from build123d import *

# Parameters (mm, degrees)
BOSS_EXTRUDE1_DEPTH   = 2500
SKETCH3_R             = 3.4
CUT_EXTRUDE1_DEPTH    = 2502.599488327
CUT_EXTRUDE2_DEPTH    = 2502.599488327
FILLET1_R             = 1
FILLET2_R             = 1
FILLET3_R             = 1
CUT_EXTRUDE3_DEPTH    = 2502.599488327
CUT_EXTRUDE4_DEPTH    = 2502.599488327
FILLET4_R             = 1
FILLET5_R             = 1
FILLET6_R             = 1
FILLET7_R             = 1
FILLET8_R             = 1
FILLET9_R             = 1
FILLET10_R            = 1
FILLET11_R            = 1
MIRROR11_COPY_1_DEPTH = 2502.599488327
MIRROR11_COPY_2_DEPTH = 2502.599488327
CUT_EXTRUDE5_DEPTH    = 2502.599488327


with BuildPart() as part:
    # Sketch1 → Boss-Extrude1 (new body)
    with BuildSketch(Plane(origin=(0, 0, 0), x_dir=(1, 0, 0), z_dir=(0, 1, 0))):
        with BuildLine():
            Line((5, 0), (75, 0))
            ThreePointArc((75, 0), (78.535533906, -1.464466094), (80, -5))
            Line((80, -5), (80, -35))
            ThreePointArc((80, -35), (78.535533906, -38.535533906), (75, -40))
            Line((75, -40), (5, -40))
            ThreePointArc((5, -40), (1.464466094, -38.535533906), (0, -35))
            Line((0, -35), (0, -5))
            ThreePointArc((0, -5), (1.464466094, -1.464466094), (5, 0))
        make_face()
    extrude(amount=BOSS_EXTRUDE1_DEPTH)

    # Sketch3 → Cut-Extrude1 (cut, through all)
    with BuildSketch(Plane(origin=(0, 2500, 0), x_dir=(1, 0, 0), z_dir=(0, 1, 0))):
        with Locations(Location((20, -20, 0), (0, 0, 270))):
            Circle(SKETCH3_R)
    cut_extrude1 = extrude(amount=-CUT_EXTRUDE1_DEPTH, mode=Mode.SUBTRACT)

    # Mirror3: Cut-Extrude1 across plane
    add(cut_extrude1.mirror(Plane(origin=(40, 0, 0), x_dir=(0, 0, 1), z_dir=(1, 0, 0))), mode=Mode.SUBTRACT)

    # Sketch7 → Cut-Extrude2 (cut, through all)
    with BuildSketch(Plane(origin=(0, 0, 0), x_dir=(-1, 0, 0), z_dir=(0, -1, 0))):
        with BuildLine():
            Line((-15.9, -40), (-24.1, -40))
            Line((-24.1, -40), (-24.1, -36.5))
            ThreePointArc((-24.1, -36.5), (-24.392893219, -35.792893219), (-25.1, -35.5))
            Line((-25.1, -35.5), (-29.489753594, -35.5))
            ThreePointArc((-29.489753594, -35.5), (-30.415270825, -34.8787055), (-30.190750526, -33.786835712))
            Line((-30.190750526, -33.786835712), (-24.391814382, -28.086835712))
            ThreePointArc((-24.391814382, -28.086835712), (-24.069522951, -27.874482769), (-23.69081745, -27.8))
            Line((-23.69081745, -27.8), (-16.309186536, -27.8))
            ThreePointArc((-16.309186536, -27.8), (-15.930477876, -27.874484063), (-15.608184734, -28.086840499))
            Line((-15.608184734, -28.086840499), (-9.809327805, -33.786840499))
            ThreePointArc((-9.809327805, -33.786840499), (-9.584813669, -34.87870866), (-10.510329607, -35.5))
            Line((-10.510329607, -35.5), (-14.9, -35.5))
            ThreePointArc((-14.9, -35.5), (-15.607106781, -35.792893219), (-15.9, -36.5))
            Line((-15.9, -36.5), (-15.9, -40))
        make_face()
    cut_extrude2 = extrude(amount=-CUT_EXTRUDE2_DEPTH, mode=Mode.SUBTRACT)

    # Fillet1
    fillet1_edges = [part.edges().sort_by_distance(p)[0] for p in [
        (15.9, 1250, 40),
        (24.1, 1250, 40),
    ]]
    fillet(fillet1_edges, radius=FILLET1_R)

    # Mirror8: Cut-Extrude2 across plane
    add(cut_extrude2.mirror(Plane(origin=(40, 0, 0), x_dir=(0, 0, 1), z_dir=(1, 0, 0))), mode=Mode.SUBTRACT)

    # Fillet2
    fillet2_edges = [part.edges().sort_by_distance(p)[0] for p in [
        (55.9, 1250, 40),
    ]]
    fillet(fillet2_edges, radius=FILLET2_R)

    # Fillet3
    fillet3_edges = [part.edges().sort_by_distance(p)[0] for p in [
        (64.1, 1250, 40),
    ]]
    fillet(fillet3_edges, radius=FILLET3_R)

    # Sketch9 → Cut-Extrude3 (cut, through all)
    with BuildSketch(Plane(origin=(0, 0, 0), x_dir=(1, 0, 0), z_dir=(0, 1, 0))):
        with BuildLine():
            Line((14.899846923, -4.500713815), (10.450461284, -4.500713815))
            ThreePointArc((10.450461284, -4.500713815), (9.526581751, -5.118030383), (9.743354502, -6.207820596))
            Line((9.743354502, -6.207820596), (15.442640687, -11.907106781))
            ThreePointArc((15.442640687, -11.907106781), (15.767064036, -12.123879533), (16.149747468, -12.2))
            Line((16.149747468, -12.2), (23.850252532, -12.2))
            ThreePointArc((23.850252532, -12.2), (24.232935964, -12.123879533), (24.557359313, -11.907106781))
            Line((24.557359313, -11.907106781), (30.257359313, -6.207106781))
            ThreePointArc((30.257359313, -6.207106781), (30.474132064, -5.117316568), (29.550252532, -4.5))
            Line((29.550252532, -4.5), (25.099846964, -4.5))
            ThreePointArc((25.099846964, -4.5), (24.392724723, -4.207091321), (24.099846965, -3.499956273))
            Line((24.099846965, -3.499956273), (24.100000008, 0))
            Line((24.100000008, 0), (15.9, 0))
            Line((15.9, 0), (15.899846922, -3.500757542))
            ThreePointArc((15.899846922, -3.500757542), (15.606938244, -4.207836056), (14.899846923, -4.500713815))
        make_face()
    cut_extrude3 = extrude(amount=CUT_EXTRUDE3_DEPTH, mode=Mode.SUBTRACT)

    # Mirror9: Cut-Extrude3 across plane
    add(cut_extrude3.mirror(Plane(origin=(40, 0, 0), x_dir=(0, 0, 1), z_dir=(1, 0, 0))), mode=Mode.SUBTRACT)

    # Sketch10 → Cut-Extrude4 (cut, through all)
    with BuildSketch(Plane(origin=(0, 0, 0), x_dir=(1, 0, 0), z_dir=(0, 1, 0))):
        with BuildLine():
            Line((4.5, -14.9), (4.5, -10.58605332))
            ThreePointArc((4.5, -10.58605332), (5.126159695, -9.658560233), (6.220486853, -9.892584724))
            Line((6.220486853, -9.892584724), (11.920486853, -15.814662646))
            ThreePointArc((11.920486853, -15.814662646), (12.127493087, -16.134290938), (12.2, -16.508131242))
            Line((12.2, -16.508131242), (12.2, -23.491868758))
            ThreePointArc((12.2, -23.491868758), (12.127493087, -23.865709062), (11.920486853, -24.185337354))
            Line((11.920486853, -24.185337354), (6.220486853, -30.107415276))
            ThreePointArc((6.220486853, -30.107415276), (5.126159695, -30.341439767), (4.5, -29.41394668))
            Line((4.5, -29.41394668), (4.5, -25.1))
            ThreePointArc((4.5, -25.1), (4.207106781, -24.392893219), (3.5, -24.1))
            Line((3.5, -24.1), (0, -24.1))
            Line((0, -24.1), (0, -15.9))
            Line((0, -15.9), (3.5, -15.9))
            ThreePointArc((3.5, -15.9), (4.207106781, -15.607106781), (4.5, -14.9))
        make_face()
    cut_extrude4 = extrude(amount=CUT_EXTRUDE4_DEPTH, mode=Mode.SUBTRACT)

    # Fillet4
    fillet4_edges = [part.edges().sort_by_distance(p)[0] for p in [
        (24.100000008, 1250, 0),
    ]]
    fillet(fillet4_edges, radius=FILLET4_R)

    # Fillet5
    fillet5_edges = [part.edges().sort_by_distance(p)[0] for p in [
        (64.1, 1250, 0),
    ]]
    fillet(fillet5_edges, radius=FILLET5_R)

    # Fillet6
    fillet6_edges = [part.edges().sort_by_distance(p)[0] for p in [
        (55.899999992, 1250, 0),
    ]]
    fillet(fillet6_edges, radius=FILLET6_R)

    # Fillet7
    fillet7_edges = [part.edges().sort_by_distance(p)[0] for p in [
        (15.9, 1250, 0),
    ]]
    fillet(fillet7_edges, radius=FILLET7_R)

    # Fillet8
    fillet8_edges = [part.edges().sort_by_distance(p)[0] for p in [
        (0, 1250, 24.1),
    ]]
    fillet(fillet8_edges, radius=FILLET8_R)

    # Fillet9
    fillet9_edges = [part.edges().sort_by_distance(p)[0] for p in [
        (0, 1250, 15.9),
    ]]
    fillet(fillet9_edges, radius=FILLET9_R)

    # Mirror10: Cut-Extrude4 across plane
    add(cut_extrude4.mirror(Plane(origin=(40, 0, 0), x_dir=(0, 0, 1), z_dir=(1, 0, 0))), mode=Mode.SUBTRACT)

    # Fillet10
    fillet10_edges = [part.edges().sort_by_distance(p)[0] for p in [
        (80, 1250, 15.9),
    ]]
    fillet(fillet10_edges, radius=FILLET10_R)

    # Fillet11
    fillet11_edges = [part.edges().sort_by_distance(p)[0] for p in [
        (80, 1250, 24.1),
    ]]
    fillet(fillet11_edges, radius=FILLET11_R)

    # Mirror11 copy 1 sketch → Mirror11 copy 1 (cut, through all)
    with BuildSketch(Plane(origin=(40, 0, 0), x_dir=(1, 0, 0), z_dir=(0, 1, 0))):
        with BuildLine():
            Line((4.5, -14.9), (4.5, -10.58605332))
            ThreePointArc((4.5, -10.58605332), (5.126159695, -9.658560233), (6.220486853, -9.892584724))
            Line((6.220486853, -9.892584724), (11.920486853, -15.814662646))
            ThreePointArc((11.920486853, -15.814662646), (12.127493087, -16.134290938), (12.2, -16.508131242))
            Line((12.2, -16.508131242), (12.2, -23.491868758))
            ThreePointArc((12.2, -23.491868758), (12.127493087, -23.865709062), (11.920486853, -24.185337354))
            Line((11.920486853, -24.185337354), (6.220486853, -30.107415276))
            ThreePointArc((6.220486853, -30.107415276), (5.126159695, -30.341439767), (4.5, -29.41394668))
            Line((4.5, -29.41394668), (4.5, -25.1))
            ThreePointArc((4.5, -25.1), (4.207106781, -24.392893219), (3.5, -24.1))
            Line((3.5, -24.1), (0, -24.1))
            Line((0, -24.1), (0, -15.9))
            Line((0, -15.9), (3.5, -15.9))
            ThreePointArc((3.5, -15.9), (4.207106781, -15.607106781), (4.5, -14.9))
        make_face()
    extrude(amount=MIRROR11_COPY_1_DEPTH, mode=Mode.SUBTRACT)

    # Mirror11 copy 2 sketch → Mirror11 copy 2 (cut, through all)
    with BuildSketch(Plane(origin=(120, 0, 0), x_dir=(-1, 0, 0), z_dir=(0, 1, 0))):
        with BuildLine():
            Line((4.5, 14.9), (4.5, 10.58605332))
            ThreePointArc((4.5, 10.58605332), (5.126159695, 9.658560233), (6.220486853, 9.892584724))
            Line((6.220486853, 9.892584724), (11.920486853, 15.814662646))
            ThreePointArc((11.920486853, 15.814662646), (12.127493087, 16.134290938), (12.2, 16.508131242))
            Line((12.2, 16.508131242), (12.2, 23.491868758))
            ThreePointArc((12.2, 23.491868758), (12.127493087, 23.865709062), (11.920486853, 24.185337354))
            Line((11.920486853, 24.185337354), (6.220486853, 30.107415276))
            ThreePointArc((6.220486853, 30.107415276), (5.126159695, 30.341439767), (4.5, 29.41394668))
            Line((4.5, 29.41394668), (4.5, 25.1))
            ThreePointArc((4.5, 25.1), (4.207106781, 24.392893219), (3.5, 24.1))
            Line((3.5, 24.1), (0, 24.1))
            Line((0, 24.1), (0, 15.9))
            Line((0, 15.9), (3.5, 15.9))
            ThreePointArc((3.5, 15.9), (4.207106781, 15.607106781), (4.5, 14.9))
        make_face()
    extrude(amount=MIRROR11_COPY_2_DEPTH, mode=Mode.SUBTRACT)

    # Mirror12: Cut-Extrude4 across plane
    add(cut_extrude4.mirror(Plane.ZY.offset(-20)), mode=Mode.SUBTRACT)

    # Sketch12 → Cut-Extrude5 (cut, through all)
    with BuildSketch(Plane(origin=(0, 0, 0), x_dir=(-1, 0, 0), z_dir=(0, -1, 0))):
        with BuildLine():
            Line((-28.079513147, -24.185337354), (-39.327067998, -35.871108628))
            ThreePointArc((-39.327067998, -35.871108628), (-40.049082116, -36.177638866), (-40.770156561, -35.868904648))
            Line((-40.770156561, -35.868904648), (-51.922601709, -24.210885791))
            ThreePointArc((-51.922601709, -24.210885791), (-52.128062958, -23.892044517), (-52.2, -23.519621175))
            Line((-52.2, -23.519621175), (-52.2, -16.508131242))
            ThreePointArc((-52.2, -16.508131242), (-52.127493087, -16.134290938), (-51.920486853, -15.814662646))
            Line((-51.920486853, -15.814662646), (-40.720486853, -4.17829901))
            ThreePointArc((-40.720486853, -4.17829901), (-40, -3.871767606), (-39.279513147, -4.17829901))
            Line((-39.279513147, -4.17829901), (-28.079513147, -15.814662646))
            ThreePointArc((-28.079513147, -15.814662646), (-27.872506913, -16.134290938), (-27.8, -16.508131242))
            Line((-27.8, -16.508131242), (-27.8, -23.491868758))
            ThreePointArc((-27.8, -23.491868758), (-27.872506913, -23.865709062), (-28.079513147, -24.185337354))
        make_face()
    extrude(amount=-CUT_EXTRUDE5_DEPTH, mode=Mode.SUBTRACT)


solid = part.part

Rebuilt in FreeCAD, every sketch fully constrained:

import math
import FreeCAD as App
import Part
import Sketcher


def edges_at(feature, points):
    """Names of the edges that pass closest to the given points."""
    edges = feature.Shape.Edges
    near = lambda p: min(range(len(edges)), key=lambda i: edges[i].distToShape(Part.Vertex(*p))[0])
    return sorted({f"Edge{near(p) + 1}" for p in points})

doc = App.newDocument("Part")
body = doc.addObject("PartDesign::Body", "Body")

# Sketch on XZ plane
sketch1 = body.newObject("Sketcher::SketchObject", "Sketch")
sketch1.AttachmentSupport = (doc.getObject("XZ_Plane"), [""])
sketch1.MapMode = "FlatFace"
sketch1.addGeometry([
    Part.LineSegment(App.Vector(75, 0, 0), App.Vector(5, 0, 0)),  # 0
    Part.ArcOfCircle(Part.Circle(App.Vector(5, 5, 0), App.Vector(0, 0, 1), 5), math.radians(180), math.radians(270)),  # 1
    Part.LineSegment(App.Vector(0, 5, 0), App.Vector(0, 35, 0)),  # 2
    Part.ArcOfCircle(Part.Circle(App.Vector(5, 35, 0), App.Vector(0, 0, 1), 5), math.radians(90), math.radians(180)),  # 3
    Part.LineSegment(App.Vector(5, 40, 0), App.Vector(75, 40, 0)),  # 4
    Part.ArcOfCircle(Part.Circle(App.Vector(75, 35, 0), App.Vector(0, 0, 1), 5), math.radians(0), math.radians(90)),  # 5
    Part.LineSegment(App.Vector(80, 35, 0), App.Vector(80, 5, 0)),  # 6
    Part.ArcOfCircle(Part.Circle(App.Vector(75, 5, 0), App.Vector(0, 0, 1), 5), math.radians(-90), math.radians(0)),  # 7
], False)
sketch1.addConstraint([
    Sketcher.Constraint("Tangent", 0, 2, 1, 2),
    Sketcher.Constraint("Tangent", 1, 1, 2, 1),
    Sketcher.Constraint("Tangent", 2, 2, 3, 2),
    Sketcher.Constraint("Tangent", 3, 1, 4, 1),
    Sketcher.Constraint("Tangent", 4, 2, 5, 2),
    Sketcher.Constraint("Tangent", 5, 1, 6, 1),
    Sketcher.Constraint("Tangent", 6, 2, 7, 2),
    Sketcher.Constraint("Tangent", 7, 1, 0, 1),
    Sketcher.Constraint("Horizontal", 0),
    Sketcher.Constraint("Vertical", 2),
    Sketcher.Constraint("Horizontal", 4),
    Sketcher.Constraint("Vertical", 6),
    Sketcher.Constraint("Equal", 1, 3),
    Sketcher.Constraint("Equal", 3, 5),
    Sketcher.Constraint("Equal", 5, 7),
    Sketcher.Constraint("PointOnObject", 0, 2, -1),
    Sketcher.Constraint("PointOnObject", 1, 1, -2),
    Sketcher.Constraint("Radius", 1, 5.0),
    Sketcher.Constraint("DistanceX", 0, 2, 0, 1, 70.0),
    Sketcher.Constraint("DistanceY", 2, 1, 2, 2, 30.0),
])
pad1 = body.newObject("PartDesign::Pad", "Pad")
pad1.Profile = sketch1
pad1.Length = 2500
pad1.Reversed = True

# Sketch on XZ plane
sketch2 = body.newObject("Sketcher::SketchObject", "Sketch001")
sketch2.AttachmentSupport = (doc.getObject("XZ_Plane"), [""])
sketch2.MapMode = "FlatFace"
sketch2.AttachmentOffset = App.Placement(App.Vector(0, 0, -2500), App.Rotation())
sketch2.addGeometry(Part.Circle(App.Vector(20, 20, 0), App.Vector(0, 0, 1), 3.4), False)
sketch2.addConstraint([
    Sketcher.Constraint("Diameter", 0, 6.8),
    Sketcher.Constraint("DistanceX", -1, 1, 0, 3, 20.0),
    Sketcher.Constraint("DistanceY", -1, 1, 0, 3, 20.0),
])
pocket1 = body.newObject("PartDesign::Pocket", "Pocket")
pocket1.Profile = sketch2
pocket1.Type = "ThroughAll"
pocket1.Reversed = True
doc.recompute()

datumplane = body.newObject("PartDesign::Plane", "DatumPlane")
datumplane.AttachmentSupport = (doc.getObject("YZ_Plane"), [""])
datumplane.MapMode = "FlatFace"
datumplane.AttachmentOffset = App.Placement(App.Vector(0, 0, 40), App.Rotation())
mirrored = body.newObject("PartDesign::Mirrored", "Mirrored")
mirrored.Originals = [pocket1]
mirrored.MirrorPlane = (datumplane, [""])
body.Tip = mirrored

# Sketch on XZ plane
sketch3 = body.newObject("Sketcher::SketchObject", "Sketch002")
sketch3.AttachmentSupport = (doc.getObject("XZ_Plane"), [""])
sketch3.MapMode = "FlatFace"
sketch3.addGeometry([
    Part.LineSegment(App.Vector(24.1, 40, 0), App.Vector(15.9, 40, 0)),  # 0
    Part.LineSegment(App.Vector(15.9, 40, 0), App.Vector(15.9, 36.5, 0)),  # 1
    Part.ArcOfCircle(Part.Circle(App.Vector(14.9, 36.5, 0), App.Vector(0, 0, 1), 1), math.radians(-90), math.radians(0)),  # 2
    Part.LineSegment(App.Vector(14.9, 35.5, 0), App.Vector(10.5, 35.5, 0)),  # 3
    Part.ArcOfCircle(Part.Circle(App.Vector(10.5, 34.5, 0), App.Vector(0, 0, 1), 1), math.radians(90), math.radians(225)),  # 4
    Part.LineSegment(App.Vector(9.8, 33.8, 0), App.Vector(15.6, 28.1, 0)),  # 5
    Part.ArcOfCircle(Part.Circle(App.Vector(16.3, 28.8, 0), App.Vector(0, 0, 1), 1), math.radians(-135), math.radians(-90)),  # 6
    Part.LineSegment(App.Vector(16.3, 27.8, 0), App.Vector(23.7, 27.8, 0)),  # 7
    Part.ArcOfCircle(Part.Circle(App.Vector(23.7, 28.8, 0), App.Vector(0, 0, 1), 1), math.radians(-90), math.radians(-45)),  # 8
    Part.LineSegment(App.Vector(24.4, 28.1, 0), App.Vector(30.2, 33.8, 0)),  # 9
    Part.ArcOfCircle(Part.Circle(App.Vector(29.5, 34.5, 0), App.Vector(0, 0, 1), 1), math.radians(-45), math.radians(90)),  # 10
    Part.LineSegment(App.Vector(29.5, 35.5, 0), App.Vector(25.1, 35.5, 0)),  # 11
    Part.ArcOfCircle(Part.Circle(App.Vector(25.1, 36.5, 0), App.Vector(0, 0, 1), 1), math.radians(-180), math.radians(-90)),  # 12
    Part.LineSegment(App.Vector(24.1, 36.5, 0), App.Vector(24.1, 40, 0)),  # 13
], False)
sketch3.addConstraint([
    Sketcher.Constraint("Coincident", 0, 2, 1, 1),
    Sketcher.Constraint("Tangent", 1, 2, 2, 2),
    Sketcher.Constraint("Tangent", 2, 1, 3, 1),
    Sketcher.Constraint("Tangent", 3, 2, 4, 1),
    Sketcher.Constraint("Tangent", 4, 2, 5, 1),
    Sketcher.Constraint("Tangent", 5, 2, 6, 1),
    Sketcher.Constraint("Tangent", 6, 2, 7, 1),
    Sketcher.Constraint("Tangent", 7, 2, 8, 1),
    Sketcher.Constraint("Tangent", 8, 2, 9, 1),
    Sketcher.Constraint("Tangent", 9, 2, 10, 1),
    Sketcher.Constraint("Tangent", 10, 2, 11, 1),
    Sketcher.Constraint("Tangent", 11, 2, 12, 2),
    Sketcher.Constraint("Tangent", 12, 1, 13, 1),
    Sketcher.Constraint("Coincident", 13, 2, 0, 1),
    Sketcher.Constraint("Horizontal", 0),
    Sketcher.Constraint("Vertical", 1),
    Sketcher.Constraint("Horizontal", 3),
    Sketcher.Constraint("Horizontal", 7),
    Sketcher.Constraint("Horizontal", 11),
    Sketcher.Constraint("Vertical", 13),
    Sketcher.Constraint("Equal", 2, 4),
    Sketcher.Constraint("Equal", 4, 6),
    Sketcher.Constraint("Equal", 6, 8),
    Sketcher.Constraint("Equal", 8, 10),
    Sketcher.Constraint("Equal", 10, 12),
    Sketcher.Constraint("Horizontal", 4, 3, 10, 3),
    Sketcher.Constraint("Radius", 2, 1.0),
    Sketcher.Constraint("DistanceX", 0, 2, 0, 1, 8.2),
    Sketcher.Constraint("DistanceY", 1, 2, 1, 1, 3.5),
    Sketcher.Constraint("DistanceY", -1, 1, 0, 2, 40.0),
    Sketcher.Constraint("DistanceX", -1, 1, 2, 3, 14.9),
    Sketcher.Constraint("DistanceY", -1, 1, 6, 3, 28.8),
    Sketcher.Constraint("DistanceX", 4, 2, 4, 3, 0.701002),
    Sketcher.Constraint("DistanceX", 3, 2, 3, 1, 4.38967),
    Sketcher.Constraint("DistanceX", 7, 1, 7, 2, 7.381631),
    Sketcher.Constraint("DistanceX", 11, 2, 11, 1, 4.389754),
])
pocket2 = body.newObject("PartDesign::Pocket", "Pocket001")
pocket2.Profile = sketch3
pocket2.Type = "ThroughAll"
doc.recompute()

fillet = body.newObject("PartDesign::Fillet", "Fillet")
fillet.Base = (pocket2, edges_at(pocket2, [(15.9, 1250, 40), (24.1, 1250, 40)]))
fillet.Radius = 1
doc.recompute()

datumplane2 = body.newObject("PartDesign::Plane", "DatumPlane001")
datumplane2.AttachmentSupport = (doc.getObject("YZ_Plane"), [""])
datumplane2.MapMode = "FlatFace"
datumplane2.AttachmentOffset = App.Placement(App.Vector(0, 0, 40), App.Rotation())
mirrored2 = body.newObject("PartDesign::Mirrored", "Mirrored001")
mirrored2.Originals = [pocket2]
mirrored2.MirrorPlane = (datumplane2, [""])
body.Tip = mirrored2
doc.recompute()

fillet2 = body.newObject("PartDesign::Fillet", "Fillet001")
fillet2.Base = (mirrored2, edges_at(mirrored2, [(55.9, 1250, 40)]))
fillet2.Radius = 1
doc.recompute()

fillet3 = body.newObject("PartDesign::Fillet", "Fillet002")
fillet3.Base = (fillet2, edges_at(fillet2, [(64.1, 1250, 40)]))
fillet3.Radius = 1

# Sketch on XZ plane
sketch4 = body.newObject("Sketcher::SketchObject", "Sketch003")
sketch4.AttachmentSupport = (doc.getObject("XZ_Plane"), [""])
sketch4.MapMode = "FlatFace"
sketch4.addGeometry([
    Part.LineSegment(App.Vector(14.9, 4.5, 0), App.Vector(10.5, 4.5, 0)),  # 0
    Part.ArcOfCircle(Part.Circle(App.Vector(10.5, 5.5, 0), App.Vector(0, 0, 1), 1), math.radians(135), math.radians(270)),  # 1
    Part.LineSegment(App.Vector(9.7, 6.2, 0), App.Vector(15.4, 11.9, 0)),  # 2
    Part.ArcOfCircle(Part.Circle(App.Vector(16.1, 11.2, 0), App.Vector(0, 0, 1), 1), math.radians(90), math.radians(135)),  # 3
    Part.LineSegment(App.Vector(16.1, 12.2, 0), App.Vector(23.9, 12.2, 0)),  # 4
    Part.ArcOfCircle(Part.Circle(App.Vector(23.9, 11.2, 0), App.Vector(0, 0, 1), 1), math.radians(45), math.radians(90)),  # 5
    Part.LineSegment(App.Vector(24.6, 11.9, 0), App.Vector(30.3, 6.2, 0)),  # 6
    Part.ArcOfCircle(Part.Circle(App.Vector(29.6, 5.5, 0), App.Vector(0, 0, 1), 1), math.radians(-90), math.radians(45)),  # 7
    Part.LineSegment(App.Vector(29.6, 4.5, 0), App.Vector(25.1, 4.5, 0)),  # 8
    Part.ArcOfCircle(Part.Circle(App.Vector(25.1, 3.5, 0), App.Vector(0, 0, 1), 1), math.radians(90), math.radians(180)),  # 9
    Part.LineSegment(App.Vector(24.1, 3.5, 0), App.Vector(24.1, 0, 0)),  # 10
    Part.LineSegment(App.Vector(24.1, 0, 0), App.Vector(15.9, 0, 0)),  # 11
    Part.LineSegment(App.Vector(15.9, 0, 0), App.Vector(15.9, 3.5, 0)),  # 12
    Part.ArcOfCircle(Part.Circle(App.Vector(14.9, 3.5, 0), App.Vector(0, 0, 1), 1), math.radians(0), math.radians(90)),  # 13
], False)
sketch4.addConstraint([
    Sketcher.Constraint("Tangent", 0, 2, 1, 2),
    Sketcher.Constraint("Tangent", 1, 1, 2, 1),
    Sketcher.Constraint("Tangent", 2, 2, 3, 2),
    Sketcher.Constraint("Tangent", 3, 1, 4, 1),
    Sketcher.Constraint("Tangent", 4, 2, 5, 2),
    Sketcher.Constraint("Tangent", 5, 1, 6, 1),
    Sketcher.Constraint("Tangent", 6, 2, 7, 2),
    Sketcher.Constraint("Tangent", 7, 1, 8, 1),
    Sketcher.Constraint("Tangent", 8, 2, 9, 1),
    Sketcher.Constraint("Tangent", 9, 2, 10, 1),
    Sketcher.Constraint("Coincident", 10, 2, 11, 1),
    Sketcher.Constraint("Coincident", 11, 2, 12, 1),
    Sketcher.Constraint("Tangent", 12, 2, 13, 1),
    Sketcher.Constraint("Tangent", 13, 2, 0, 1),
    Sketcher.Constraint("Horizontal", 0),
    Sketcher.Constraint("Horizontal", 4),
    Sketcher.Constraint("Horizontal", 8),
    Sketcher.Constraint("Horizontal", 11),
    Sketcher.Constraint("Equal", 1, 3),
    Sketcher.Constraint("Equal", 3, 5),
    Sketcher.Constraint("Equal", 5, 7),
    Sketcher.Constraint("Equal", 7, 9),
    Sketcher.Constraint("Equal", 9, 13),
    Sketcher.Constraint("PointOnObject", 10, 2, -1),
    Sketcher.Constraint("Perpendicular", 2, 6),
    Sketcher.Constraint("Parallel", 10, 12),
    Sketcher.Constraint("Horizontal", 2, 2, 5, 1),
    Sketcher.Constraint("Radius", 1, 1.0),
    Sketcher.Constraint("DistanceX", 11, 2, 11, 1, 8.2),
    Sketcher.Constraint("DistanceY", -1, 1, 3, 3, 11.2),
    Sketcher.Constraint("DistanceY", -1, 1, 7, 3, 5.5),
    Sketcher.Constraint("DistanceX", -1, 1, 10, 2, 24.1),
    Sketcher.Constraint("DistanceX", 3, 3, 9, 3, 8.950099),
    Sketcher.Constraint("DistanceX", 1, 1, 5, 3, 14.106898),
    Sketcher.Constraint("DistanceX", 0, 2, 0, 1, 4.449386),
    Sketcher.Constraint("DistanceX", -1, 1, 1, 3, 10.450461),
])
pocket3 = body.newObject("PartDesign::Pocket", "Pocket002")
pocket3.Profile = sketch4
pocket3.Type = "ThroughAll"
doc.recompute()

datumplane3 = body.newObject("PartDesign::Plane", "DatumPlane002")
datumplane3.AttachmentSupport = (doc.getObject("YZ_Plane"), [""])
datumplane3.MapMode = "FlatFace"
datumplane3.AttachmentOffset = App.Placement(App.Vector(0, 0, 40), App.Rotation())
mirrored3 = body.newObject("PartDesign::Mirrored", "Mirrored002")
mirrored3.Originals = [pocket3]
mirrored3.MirrorPlane = (datumplane3, [""])
body.Tip = mirrored3

# Sketch on XZ plane
sketch5 = body.newObject("Sketcher::SketchObject", "Sketch004")
sketch5.AttachmentSupport = (doc.getObject("XZ_Plane"), [""])
sketch5.MapMode = "FlatFace"
sketch5.addGeometry([
    Part.LineSegment(App.Vector(4.5, 10.6, 0), App.Vector(4.5, 14.9, 0)),  # 0
    Part.ArcOfCircle(Part.Circle(App.Vector(3.5, 14.9, 0), App.Vector(0, 0, 1), 1), math.radians(0), math.radians(90)),  # 1
    Part.LineSegment(App.Vector(3.5, 15.9, 0), App.Vector(0, 15.9, 0)),  # 2
    Part.LineSegment(App.Vector(0, 15.9, 0), App.Vector(0, 24.1, 0)),  # 3
    Part.LineSegment(App.Vector(0, 24.1, 0), App.Vector(3.5, 24.1, 0)),  # 4
    Part.ArcOfCircle(Part.Circle(App.Vector(3.5, 25.1, 0), App.Vector(0, 0, 1), 1), math.radians(-90), math.radians(0)),  # 5
    Part.LineSegment(App.Vector(4.5, 25.1, 0), App.Vector(4.5, 29.4, 0)),  # 6
    Part.ArcOfCircle(Part.Circle(App.Vector(5.5, 29.4, 0), App.Vector(0, 0, 1), 1), math.radians(44), math.radians(180)),  # 7
    Part.LineSegment(App.Vector(6.2, 30.1, 0), App.Vector(11.9, 24.2, 0)),  # 8
    Part.ArcOfCircle(Part.Circle(App.Vector(11.2, 23.5, 0), App.Vector(0, 0, 1), 1), math.radians(0), math.radians(44)),  # 9
    Part.LineSegment(App.Vector(12.2, 23.5, 0), App.Vector(12.2, 16.5, 0)),  # 10
    Part.ArcOfCircle(Part.Circle(App.Vector(11.2, 16.5, 0), App.Vector(0, 0, 1), 1), math.radians(-44), math.radians(0)),  # 11
    Part.LineSegment(App.Vector(11.9, 15.8, 0), App.Vector(6.2, 9.9, 0)),  # 12
    Part.ArcOfCircle(Part.Circle(App.Vector(5.5, 10.6, 0), App.Vector(0, 0, 1), 1), math.radians(180), math.radians(316)),  # 13
], False)
sketch5.addConstraint([
    Sketcher.Constraint("Tangent", 0, 2, 1, 1),
    Sketcher.Constraint("Tangent", 1, 2, 2, 1),
    Sketcher.Constraint("Coincident", 2, 2, 3, 1),
    Sketcher.Constraint("Coincident", 3, 2, 4, 1),
    Sketcher.Constraint("Tangent", 4, 2, 5, 1),
    Sketcher.Constraint("Tangent", 5, 2, 6, 1),
    Sketcher.Constraint("Tangent", 6, 2, 7, 2),
    Sketcher.Constraint("Tangent", 7, 1, 8, 1),
    Sketcher.Constraint("Tangent", 8, 2, 9, 2),
    Sketcher.Constraint("Tangent", 9, 1, 10, 1),
    Sketcher.Constraint("Tangent", 10, 2, 11, 2),
    Sketcher.Constraint("Tangent", 11, 1, 12, 1),
    Sketcher.Constraint("Tangent", 12, 2, 13, 2),
    Sketcher.Constraint("Tangent", 13, 1, 0, 1),
    Sketcher.Constraint("Vertical", 0),
    Sketcher.Constraint("Horizontal", 2),
    Sketcher.Constraint("Vertical", 3),
    Sketcher.Constraint("Horizontal", 4),
    Sketcher.Constraint("Vertical", 6),
    Sketcher.Constraint("Vertical", 10),
    Sketcher.Constraint("Equal", 1, 5),
    Sketcher.Constraint("Equal", 5, 7),
    Sketcher.Constraint("Equal", 7, 9),
    Sketcher.Constraint("Equal", 9, 11),
    Sketcher.Constraint("Equal", 11, 13),
    Sketcher.Constraint("PointOnObject", 2, 2, -2),
    Sketcher.Constraint("Vertical", 1, 3, 5, 3),
    Sketcher.Constraint("Vertical", 8, 2, 11, 1),
    Sketcher.Constraint("Equal", 0, 6),
    Sketcher.Constraint("Radius", 1, 1.0),
    Sketcher.Constraint("DistanceX", 2, 2, 2, 1, 3.5),
    Sketcher.Constraint("DistanceY", 3, 1, 3, 2, 8.2),
    Sketcher.Constraint("DistanceY", -1, 1, 1, 3, 14.9),
    Sketcher.Constraint("DistanceX", -1, 1, 9, 3, 11.2),
    Sketcher.Constraint("Distance", 8, 8.21955),
    Sketcher.Constraint("DistanceY", 0, 1, 0, 2, 4.313947),
])
pocket4 = body.newObject("PartDesign::Pocket", "Pocket003")
pocket4.Profile = sketch5
pocket4.Type = "ThroughAll"
doc.recompute()

fillet4 = body.newObject("PartDesign::Fillet", "Fillet003")
fillet4.Base = (pocket4, edges_at(pocket4, [(24.1, 1250, 0)]))
fillet4.Radius = 1
doc.recompute()

fillet5 = body.newObject("PartDesign::Fillet", "Fillet004")
fillet5.Base = (fillet4, edges_at(fillet4, [(64.1, 1250, 0)]))
fillet5.Radius = 1
doc.recompute()

fillet6 = body.newObject("PartDesign::Fillet", "Fillet005")
fillet6.Base = (fillet5, edges_at(fillet5, [(55.9, 1250, 0)]))
fillet6.Radius = 1
doc.recompute()

fillet7 = body.newObject("PartDesign::Fillet", "Fillet006")
fillet7.Base = (fillet6, edges_at(fillet6, [(15.9, 1250, 0)]))
fillet7.Radius = 1
doc.recompute()

fillet8 = body.newObject("PartDesign::Fillet", "Fillet007")
fillet8.Base = (fillet7, edges_at(fillet7, [(0, 1250, 24.1)]))
fillet8.Radius = 1
doc.recompute()

fillet9 = body.newObject("PartDesign::Fillet", "Fillet008")
fillet9.Base = (fillet8, edges_at(fillet8, [(0, 1250, 15.9)]))
fillet9.Radius = 1
doc.recompute()

datumplane4 = body.newObject("PartDesign::Plane", "DatumPlane003")
datumplane4.AttachmentSupport = (doc.getObject("YZ_Plane"), [""])
datumplane4.MapMode = "FlatFace"
datumplane4.AttachmentOffset = App.Placement(App.Vector(0, 0, 40), App.Rotation())
mirrored4 = body.newObject("PartDesign::Mirrored", "Mirrored003")
mirrored4.Originals = [pocket4]
mirrored4.MirrorPlane = (datumplane4, [""])
body.Tip = mirrored4
doc.recompute()

fillet10 = body.newObject("PartDesign::Fillet", "Fillet009")
fillet10.Base = (mirrored4, edges_at(mirrored4, [(80, 1250, 15.9)]))
fillet10.Radius = 1
doc.recompute()

fillet11 = body.newObject("PartDesign::Fillet", "Fillet010")
fillet11.Base = (fillet10, edges_at(fillet10, [(80, 1250, 24.1)]))
fillet11.Radius = 1

# Sketch on XZ plane
sketch6 = body.newObject("Sketcher::SketchObject", "Sketch005")
sketch6.AttachmentSupport = (doc.getObject("XZ_Plane"), [""])
sketch6.MapMode = "FlatFace"
sketch6.addGeometry([
    Part.LineSegment(App.Vector(44.5, 10.6, 0), App.Vector(44.5, 14.9, 0)),  # 0
    Part.ArcOfCircle(Part.Circle(App.Vector(43.5, 14.9, 0), App.Vector(0, 0, 1), 1), math.radians(0), math.radians(90)),  # 1
    Part.LineSegment(App.Vector(43.5, 15.9, 0), App.Vector(40, 15.9, 0)),  # 2
    Part.LineSegment(App.Vector(40, 15.9, 0), App.Vector(40, 24.1, 0)),  # 3
    Part.LineSegment(App.Vector(40, 24.1, 0), App.Vector(43.5, 24.1, 0)),  # 4
    Part.ArcOfCircle(Part.Circle(App.Vector(43.5, 25.1, 0), App.Vector(0, 0, 1), 1), math.radians(-90), math.radians(0)),  # 5
    Part.LineSegment(App.Vector(44.5, 25.1, 0), App.Vector(44.5, 29.4, 0)),  # 6
    Part.ArcOfCircle(Part.Circle(App.Vector(45.5, 29.4, 0), App.Vector(0, 0, 1), 1), math.radians(44), math.radians(180)),  # 7
    Part.LineSegment(App.Vector(46.2, 30.1, 0), App.Vector(51.9, 24.2, 0)),  # 8
    Part.ArcOfCircle(Part.Circle(App.Vector(51.2, 23.5, 0), App.Vector(0, 0, 1), 1), math.radians(0), math.radians(44)),  # 9
    Part.LineSegment(App.Vector(52.2, 23.5, 0), App.Vector(52.2, 16.5, 0)),  # 10
    Part.ArcOfCircle(Part.Circle(App.Vector(51.2, 16.5, 0), App.Vector(0, 0, 1), 1), math.radians(-44), math.radians(0)),  # 11
    Part.LineSegment(App.Vector(51.9, 15.8, 0), App.Vector(46.2, 9.9, 0)),  # 12
    Part.ArcOfCircle(Part.Circle(App.Vector(45.5, 10.6, 0), App.Vector(0, 0, 1), 1), math.radians(180), math.radians(316)),  # 13
], False)
sketch6.addConstraint([
    Sketcher.Constraint("Tangent", 0, 2, 1, 1),
    Sketcher.Constraint("Tangent", 1, 2, 2, 1),
    Sketcher.Constraint("Coincident", 2, 2, 3, 1),
    Sketcher.Constraint("Coincident", 3, 2, 4, 1),
    Sketcher.Constraint("Tangent", 4, 2, 5, 1),
    Sketcher.Constraint("Tangent", 5, 2, 6, 1),
    Sketcher.Constraint("Tangent", 6, 2, 7, 2),
    Sketcher.Constraint("Tangent", 7, 1, 8, 1),
    Sketcher.Constraint("Tangent", 8, 2, 9, 2),
    Sketcher.Constraint("Tangent", 9, 1, 10, 1),
    Sketcher.Constraint("Tangent", 10, 2, 11, 2),
    Sketcher.Constraint("Tangent", 11, 1, 12, 1),
    Sketcher.Constraint("Tangent", 12, 2, 13, 2),
    Sketcher.Constraint("Tangent", 13, 1, 0, 1),
    Sketcher.Constraint("Vertical", 0),
    Sketcher.Constraint("Horizontal", 2),
    Sketcher.Constraint("Vertical", 3),
    Sketcher.Constraint("Horizontal", 4),
    Sketcher.Constraint("Vertical", 6),
    Sketcher.Constraint("Vertical", 10),
    Sketcher.Constraint("Equal", 1, 5),
    Sketcher.Constraint("Equal", 5, 7),
    Sketcher.Constraint("Equal", 7, 9),
    Sketcher.Constraint("Equal", 9, 11),
    Sketcher.Constraint("Equal", 11, 13),
    Sketcher.Constraint("Vertical", 1, 3, 5, 3),
    Sketcher.Constraint("Vertical", 8, 2, 11, 1),
    Sketcher.Constraint("Equal", 0, 6),
    Sketcher.Constraint("Radius", 1, 1.0),
    Sketcher.Constraint("DistanceX", 2, 2, 2, 1, 3.5),
    Sketcher.Constraint("DistanceY", 3, 1, 3, 2, 8.2),
    Sketcher.Constraint("DistanceX", -1, 1, 2, 2, 40.0),
    Sketcher.Constraint("DistanceY", -1, 1, 1, 3, 14.9),
    Sketcher.Constraint("DistanceX", -1, 1, 9, 3, 51.2),
    Sketcher.Constraint("Distance", 8, 8.21955),
    Sketcher.Constraint("DistanceY", 0, 1, 0, 2, 4.313947),
])
pocket5 = body.newObject("PartDesign::Pocket", "Pocket004")
pocket5.Profile = sketch6
pocket5.Type = "ThroughAll"

# Sketch on XZ plane
sketch7 = body.newObject("Sketcher::SketchObject", "Sketch006")
sketch7.AttachmentSupport = (doc.getObject("XZ_Plane"), [""])
sketch7.MapMode = "FlatFace"
sketch7.addGeometry([
    Part.LineSegment(App.Vector(115.5, 14.9, 0), App.Vector(115.5, 10.6, 0)),  # 0
    Part.ArcOfCircle(Part.Circle(App.Vector(114.5, 10.6, 0), App.Vector(0, 0, 1), 1), math.radians(-136), math.radians(0)),  # 1
    Part.LineSegment(App.Vector(113.8, 9.9, 0), App.Vector(108.1, 15.8, 0)),  # 2
    Part.ArcOfCircle(Part.Circle(App.Vector(108.8, 16.5, 0), App.Vector(0, 0, 1), 1), math.radians(-180), math.radians(-136)),  # 3
    Part.LineSegment(App.Vector(107.8, 16.5, 0), App.Vector(107.8, 23.5, 0)),  # 4
    Part.ArcOfCircle(Part.Circle(App.Vector(108.8, 23.5, 0), App.Vector(0, 0, 1), 1), math.radians(136), math.radians(180)),  # 5
    Part.LineSegment(App.Vector(108.1, 24.2, 0), App.Vector(113.8, 30.1, 0)),  # 6
    Part.ArcOfCircle(Part.Circle(App.Vector(114.5, 29.4, 0), App.Vector(0, 0, 1), 1), math.radians(0), math.radians(136)),  # 7
    Part.LineSegment(App.Vector(115.5, 29.4, 0), App.Vector(115.5, 25.1, 0)),  # 8
    Part.ArcOfCircle(Part.Circle(App.Vector(116.5, 25.1, 0), App.Vector(0, 0, 1), 1), math.radians(-180), math.radians(-90)),  # 9
    Part.LineSegment(App.Vector(116.5, 24.1, 0), App.Vector(120, 24.1, 0)),  # 10
    Part.LineSegment(App.Vector(120, 24.1, 0), App.Vector(120, 15.9, 0)),  # 11
    Part.LineSegment(App.Vector(120, 15.9, 0), App.Vector(116.5, 15.9, 0)),  # 12
    Part.ArcOfCircle(Part.Circle(App.Vector(116.5, 14.9, 0), App.Vector(0, 0, 1), 1), math.radians(90), math.radians(180)),  # 13
], False)
sketch7.addConstraint([
    Sketcher.Constraint("Tangent", 0, 2, 1, 2),
    Sketcher.Constraint("Tangent", 1, 1, 2, 1),
    Sketcher.Constraint("Tangent", 2, 2, 3, 2),
    Sketcher.Constraint("Tangent", 3, 1, 4, 1),
    Sketcher.Constraint("Tangent", 4, 2, 5, 2),
    Sketcher.Constraint("Tangent", 5, 1, 6, 1),
    Sketcher.Constraint("Tangent", 6, 2, 7, 2),
    Sketcher.Constraint("Tangent", 7, 1, 8, 1),
    Sketcher.Constraint("Tangent", 8, 2, 9, 1),
    Sketcher.Constraint("Tangent", 9, 2, 10, 1),
    Sketcher.Constraint("Coincident", 10, 2, 11, 1),
    Sketcher.Constraint("Coincident", 11, 2, 12, 1),
    Sketcher.Constraint("Tangent", 12, 2, 13, 1),
    Sketcher.Constraint("Tangent", 13, 2, 0, 1),
    Sketcher.Constraint("Vertical", 0),
    Sketcher.Constraint("Vertical", 4),
    Sketcher.Constraint("Vertical", 8),
    Sketcher.Constraint("Horizontal", 10),
    Sketcher.Constraint("Vertical", 11),
    Sketcher.Constraint("Horizontal", 12),
    Sketcher.Constraint("Equal", 1, 3),
    Sketcher.Constraint("Equal", 3, 5),
    Sketcher.Constraint("Equal", 5, 7),
    Sketcher.Constraint("Equal", 7, 9),
    Sketcher.Constraint("Equal", 9, 13),
    Sketcher.Constraint("Vertical", 1, 3, 7, 3),
    Sketcher.Constraint("Vertical", 2, 2, 5, 1),
    Sketcher.Constraint("Equal", 0, 8),
    Sketcher.Constraint("Radius", 1, 1.0),
    Sketcher.Constraint("DistanceX", 10, 1, 10, 2, 3.5),
    Sketcher.Constraint("DistanceY", 11, 2, 11, 1, 8.2),
    Sketcher.Constraint("DistanceX", -1, 1, 10, 2, 120.0),
    Sketcher.Constraint("DistanceX", -1, 1, 3, 3, 108.8),
    Sketcher.Constraint("DistanceY", -1, 1, 9, 3, 25.1),
    Sketcher.Constraint("Distance", 2, 8.21955),
    Sketcher.Constraint("DistanceY", 0, 2, 0, 1, 4.313947),
])
pocket6 = body.newObject("PartDesign::Pocket", "Pocket005")
pocket6.Profile = sketch7
pocket6.Type = "ThroughAll"
doc.recompute()

datumplane5 = body.newObject("PartDesign::Plane", "DatumPlane004")
datumplane5.AttachmentSupport = (doc.getObject("YZ_Plane"), [""])
datumplane5.MapMode = "FlatFace"
datumplane5.AttachmentOffset = App.Placement(App.Vector(0, 0, 20), App.Rotation())
mirrored5 = body.newObject("PartDesign::Mirrored", "Mirrored004")
mirrored5.Originals = [pocket4]
mirrored5.MirrorPlane = (datumplane5, [""])
body.Tip = mirrored5

# Sketch on XZ plane
sketch8 = body.newObject("Sketcher::SketchObject", "Sketch007")
sketch8.AttachmentSupport = (doc.getObject("XZ_Plane"), [""])
sketch8.MapMode = "FlatFace"
sketch8.addGeometry([
    Part.LineSegment(App.Vector(39.3, 35.9, 0), App.Vector(28.1, 24.2, 0)),  # 0
    Part.ArcOfCircle(Part.Circle(App.Vector(28.8, 23.5, 0), App.Vector(0, 0, 1), 1), math.radians(136), math.radians(180)),  # 1
    Part.LineSegment(App.Vector(27.8, 23.5, 0), App.Vector(27.8, 16.5, 0)),  # 2
    Part.ArcOfCircle(Part.Circle(App.Vector(28.8, 16.5, 0), App.Vector(0, 0, 1), 1), math.radians(-180), math.radians(-136)),  # 3
    Part.LineSegment(App.Vector(28.1, 15.8, 0), App.Vector(39.3, 4.2, 0)),  # 4
    Part.ArcOfCircle(Part.Circle(App.Vector(40, 4.9, 0), App.Vector(0, 0, 1), 1), math.radians(-136), math.radians(-44)),  # 5
    Part.LineSegment(App.Vector(40.7, 4.2, 0), App.Vector(51.9, 15.8, 0)),  # 6
    Part.ArcOfCircle(Part.Circle(App.Vector(51.2, 16.5, 0), App.Vector(0, 0, 1), 1), math.radians(-44), math.radians(0)),  # 7
    Part.LineSegment(App.Vector(52.2, 16.5, 0), App.Vector(52.2, 23.5, 0)),  # 8
    Part.ArcOfCircle(Part.Circle(App.Vector(51.2, 23.5, 0), App.Vector(0, 0, 1), 1), math.radians(0), math.radians(44)),  # 9
    Part.LineSegment(App.Vector(51.9, 24.2, 0), App.Vector(40.8, 35.9, 0)),  # 10
    Part.ArcOfCircle(Part.Circle(App.Vector(40, 35.2, 0), App.Vector(0, 0, 1), 1), math.radians(44), math.radians(136)),  # 11
], False)
sketch8.addConstraint([
    Sketcher.Constraint("Tangent", 0, 2, 1, 1),
    Sketcher.Constraint("Tangent", 1, 2, 2, 1),
    Sketcher.Constraint("Tangent", 2, 2, 3, 1),
    Sketcher.Constraint("Tangent", 3, 2, 4, 1),
    Sketcher.Constraint("Tangent", 4, 2, 5, 1),
    Sketcher.Constraint("Tangent", 5, 2, 6, 1),
    Sketcher.Constraint("Tangent", 6, 2, 7, 1),
    Sketcher.Constraint("Tangent", 7, 2, 8, 1),
    Sketcher.Constraint("Tangent", 8, 2, 9, 1),
    Sketcher.Constraint("Tangent", 9, 2, 10, 1),
    Sketcher.Constraint("Tangent", 10, 2, 11, 1),
    Sketcher.Constraint("Tangent", 11, 2, 0, 1),
    Sketcher.Constraint("Vertical", 2),
    Sketcher.Constraint("Vertical", 8),
    Sketcher.Constraint("Equal", 1, 3),
    Sketcher.Constraint("Equal", 3, 5),
    Sketcher.Constraint("Equal", 5, 7),
    Sketcher.Constraint("Equal", 7, 9),
    Sketcher.Constraint("Equal", 9, 11),
    Sketcher.Constraint("Parallel", 0, 6),
    Sketcher.Constraint("Horizontal", 3, 3, 7, 3),
    Sketcher.Constraint("Horizontal", 4, 2, 5, 2),
    Sketcher.Constraint("Radius", 1, 1.0),
    Sketcher.Constraint("DistanceX", -1, 1, 5, 3, 40.0),
    Sketcher.Constraint("DistanceX", -1, 1, 1, 3, 28.8),
    Sketcher.Constraint("DistanceY", 8, 1, 8, 2, 7.01149),
    Sketcher.Constraint("DistanceY", -1, 1, 4, 2, 4.178299),
    Sketcher.Constraint("DistanceX", -1, 1, 9, 2, 51.922602),
    Sketcher.Constraint("DistanceY", 5, 3, 1, 3, 18.620101),
    Sketcher.Constraint("Distance", 0, 16.219271),
])
pocket7 = body.newObject("PartDesign::Pocket", "Pocket006")
pocket7.Profile = sketch8
pocket7.Type = "ThroughAll"

doc.recompute()
